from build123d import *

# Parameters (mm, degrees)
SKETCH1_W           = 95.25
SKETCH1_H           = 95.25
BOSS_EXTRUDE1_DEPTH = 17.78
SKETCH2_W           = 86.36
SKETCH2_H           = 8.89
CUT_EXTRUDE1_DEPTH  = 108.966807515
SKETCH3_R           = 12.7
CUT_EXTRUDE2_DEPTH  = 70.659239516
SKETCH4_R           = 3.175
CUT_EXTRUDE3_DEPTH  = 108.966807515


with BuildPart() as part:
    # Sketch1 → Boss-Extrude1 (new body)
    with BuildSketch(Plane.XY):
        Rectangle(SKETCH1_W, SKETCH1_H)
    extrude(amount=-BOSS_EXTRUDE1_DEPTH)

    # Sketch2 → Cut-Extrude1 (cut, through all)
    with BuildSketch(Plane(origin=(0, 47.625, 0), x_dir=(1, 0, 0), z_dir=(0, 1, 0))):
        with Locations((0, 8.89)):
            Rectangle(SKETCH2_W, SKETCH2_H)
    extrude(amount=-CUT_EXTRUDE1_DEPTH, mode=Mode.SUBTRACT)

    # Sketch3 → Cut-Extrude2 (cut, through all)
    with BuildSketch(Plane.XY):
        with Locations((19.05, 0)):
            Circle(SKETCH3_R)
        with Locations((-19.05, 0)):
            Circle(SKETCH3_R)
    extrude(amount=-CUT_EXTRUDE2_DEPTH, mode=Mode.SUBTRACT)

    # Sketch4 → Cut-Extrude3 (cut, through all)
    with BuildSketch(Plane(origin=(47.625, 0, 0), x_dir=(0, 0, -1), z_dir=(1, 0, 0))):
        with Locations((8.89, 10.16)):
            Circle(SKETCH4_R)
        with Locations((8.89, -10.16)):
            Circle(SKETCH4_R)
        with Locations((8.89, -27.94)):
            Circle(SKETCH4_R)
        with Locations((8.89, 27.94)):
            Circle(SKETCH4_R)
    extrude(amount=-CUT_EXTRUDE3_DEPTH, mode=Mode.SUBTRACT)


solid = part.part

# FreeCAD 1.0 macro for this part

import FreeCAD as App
import Part
import Sketcher

V = App.Vector
Q = App.Units.Quantity


def add_polygon(sketch, points):
    """Adds a closed chain of lines whose ends are joined by coincident constraints."""
    first, n = sketch.GeometryCount, len(points)
    for a, b in zip(points, points[1:] + points[:1]):
        sketch.addGeometry(Part.LineSegment(App.Vector(*a, 0), App.Vector(*b, 0)), False)
    for i in range(n):
        sketch.addConstraint(Sketcher.Constraint("Coincident", first + i, 2, first + (i + 1) % n, 1))

doc = App.newDocument("Part")
body = doc.addObject("PartDesign::Body", "Body")

sketch1 = body.newObject("Sketcher::SketchObject", "Sketch")
sketch1.AttachmentSupport = (doc.getObject("XY_Plane"), [""])
sketch1.MapMode = "FlatFace"
add_polygon(sketch1, [(-48, 48), (-48, -48), (48, -48), (48, 48)])
sketch1.addConstraint([
    Sketcher.Constraint("Vertical", 0),
    Sketcher.Constraint("Horizontal", 1),
    Sketcher.Constraint("Vertical", 2),
    Sketcher.Constraint("Horizontal", 3),
    Sketcher.Constraint("Symmetric", 0, 2, 2, 2, -1, 1),
    Sketcher.Constraint("Equal", 3, 0),
    Sketcher.Constraint("DistanceX", 1, 1, 1, 2, Q("3.75 in")),
])
pad1 = body.newObject("PartDesign::Pad", "Pad")
pad1.Profile = sketch1
pad1.Length = Q("0.7 in")
pad1.Reversed = True

sketch2 = body.newObject("Sketcher::SketchObject", "Sketch001")
sketch2.AttachmentSupport = (doc.getObject("XZ_Plane"), [""])
sketch2.MapMode = "FlatFace"
sketch2.AttachmentOffset = App.Placement(V(0, 0, -1.875 * 25.4), App.Rotation())
add_polygon(sketch2, [(-43, -13), (-43, -4), (43, -4), (43, -13)])
sketch2.addConstraint([
    Sketcher.Constraint("Vertical", 0),
    Sketcher.Constraint("Horizontal", 1),
    Sketcher.Constraint("Vertical", 2),
    Sketcher.Constraint("Horizontal", 3),
    Sketcher.Constraint("DistanceX", 1, 1, 1, 2, Q("3.4 in")),
    Sketcher.Constraint("DistanceY", 0, 1, 0, 2, Q("0.35 in")),
    Sketcher.Constraint("DistanceX", 0, 2, -1, 1, Q("1.7 in")),
    Sketcher.Constraint("DistanceY", 0, 2, -1, 1, Q("0.175 in")),
])
pocket1 = body.newObject("PartDesign::Pocket", "Pocket")
pocket1.Profile = sketch2
pocket1.Type = "ThroughAll"
pocket1.Reversed = True

sketch3 = body.newObject("Sketcher::SketchObject", "Sketch002")
sketch3.AttachmentSupport = (doc.getObject("XY_Plane"), [""])
sketch3.MapMode = "FlatFace"
sketch3.addGeometry([
    Part.Circle(V(19, 0, 0), V(0, 0, 1), 13),
    Part.Circle(V(-19, 0, 0), V(0, 0, 1), 13),
], False)
sketch3.addConstraint([
    Sketcher.Constraint("Equal", 0, 1),
    Sketcher.Constraint("Symmetric", 0, 3, 1, 3, -1, 1),
    Sketcher.Constraint("PointOnObject", 0, 3, -1),
    Sketcher.Constraint("Diameter", 0, Q("1 in")),
    Sketcher.Constraint("DistanceX", 1, 3, 0, 3, Q("1.5 in")),
])
pocket2 = body.newObject("PartDesign::Pocket", "Pocket001")
pocket2.Profile = sketch3
pocket2.Type = "ThroughAll"

sketch4 = body.newObject("Sketcher::SketchObject", "Sketch003")
sketch4.AttachmentSupport = (doc.getObject("YZ_Plane"), [""])
sketch4.MapMode = "FlatFace"
sketch4.AttachmentOffset = App.Placement(V(0, 0, 1.875 * 25.4), App.Rotation())
sketch4.addGeometry([
    Part.Circle(V(10.2, -8.9, 0), V(0, 0, 1), 3.2),
    Part.Circle(V(-10.2, -8.9, 0), V(0, 0, 1), 3.2),
    Part.Circle(V(-27.9, -8.9, 0), V(0, 0, 1), 3.2),
    Part.Circle(V(27.9, -8.9, 0), V(0, 0, 1), 3.2),
], False)
sketch4.addConstraint([
    Sketcher.Constraint("Equal", 0, 1),
    Sketcher.Constraint("Equal", 1, 2),
    Sketcher.Constraint("Equal", 2, 3),
    Sketcher.Constraint("Symmetric", 0, 3, 1, 3, -2),
    Sketcher.Constraint("Symmetric", 2, 3, 3, 3, -2),
    Sketcher.Constraint("Horizontal", 1, 3, 2, 3),
    Sketcher.Constraint("Diameter", 0, Q("0.25 in")),
    Sketcher.Constraint("DistanceX", -1, 1, 0, 3, Q("0.4 in")),
    Sketcher.Constraint("DistanceX", 2, 3, -1, 1, Q("1.1 in")),
    Sketcher.Constraint("DistanceY", 0, 3, -1, 1, Q("0.35 in")),
])
pocket3 = body.newObject("PartDesign::Pocket", "Pocket002")
pocket3.Profile = sketch4
pocket3.Type = "ThroughAll"

doc.recompute()
